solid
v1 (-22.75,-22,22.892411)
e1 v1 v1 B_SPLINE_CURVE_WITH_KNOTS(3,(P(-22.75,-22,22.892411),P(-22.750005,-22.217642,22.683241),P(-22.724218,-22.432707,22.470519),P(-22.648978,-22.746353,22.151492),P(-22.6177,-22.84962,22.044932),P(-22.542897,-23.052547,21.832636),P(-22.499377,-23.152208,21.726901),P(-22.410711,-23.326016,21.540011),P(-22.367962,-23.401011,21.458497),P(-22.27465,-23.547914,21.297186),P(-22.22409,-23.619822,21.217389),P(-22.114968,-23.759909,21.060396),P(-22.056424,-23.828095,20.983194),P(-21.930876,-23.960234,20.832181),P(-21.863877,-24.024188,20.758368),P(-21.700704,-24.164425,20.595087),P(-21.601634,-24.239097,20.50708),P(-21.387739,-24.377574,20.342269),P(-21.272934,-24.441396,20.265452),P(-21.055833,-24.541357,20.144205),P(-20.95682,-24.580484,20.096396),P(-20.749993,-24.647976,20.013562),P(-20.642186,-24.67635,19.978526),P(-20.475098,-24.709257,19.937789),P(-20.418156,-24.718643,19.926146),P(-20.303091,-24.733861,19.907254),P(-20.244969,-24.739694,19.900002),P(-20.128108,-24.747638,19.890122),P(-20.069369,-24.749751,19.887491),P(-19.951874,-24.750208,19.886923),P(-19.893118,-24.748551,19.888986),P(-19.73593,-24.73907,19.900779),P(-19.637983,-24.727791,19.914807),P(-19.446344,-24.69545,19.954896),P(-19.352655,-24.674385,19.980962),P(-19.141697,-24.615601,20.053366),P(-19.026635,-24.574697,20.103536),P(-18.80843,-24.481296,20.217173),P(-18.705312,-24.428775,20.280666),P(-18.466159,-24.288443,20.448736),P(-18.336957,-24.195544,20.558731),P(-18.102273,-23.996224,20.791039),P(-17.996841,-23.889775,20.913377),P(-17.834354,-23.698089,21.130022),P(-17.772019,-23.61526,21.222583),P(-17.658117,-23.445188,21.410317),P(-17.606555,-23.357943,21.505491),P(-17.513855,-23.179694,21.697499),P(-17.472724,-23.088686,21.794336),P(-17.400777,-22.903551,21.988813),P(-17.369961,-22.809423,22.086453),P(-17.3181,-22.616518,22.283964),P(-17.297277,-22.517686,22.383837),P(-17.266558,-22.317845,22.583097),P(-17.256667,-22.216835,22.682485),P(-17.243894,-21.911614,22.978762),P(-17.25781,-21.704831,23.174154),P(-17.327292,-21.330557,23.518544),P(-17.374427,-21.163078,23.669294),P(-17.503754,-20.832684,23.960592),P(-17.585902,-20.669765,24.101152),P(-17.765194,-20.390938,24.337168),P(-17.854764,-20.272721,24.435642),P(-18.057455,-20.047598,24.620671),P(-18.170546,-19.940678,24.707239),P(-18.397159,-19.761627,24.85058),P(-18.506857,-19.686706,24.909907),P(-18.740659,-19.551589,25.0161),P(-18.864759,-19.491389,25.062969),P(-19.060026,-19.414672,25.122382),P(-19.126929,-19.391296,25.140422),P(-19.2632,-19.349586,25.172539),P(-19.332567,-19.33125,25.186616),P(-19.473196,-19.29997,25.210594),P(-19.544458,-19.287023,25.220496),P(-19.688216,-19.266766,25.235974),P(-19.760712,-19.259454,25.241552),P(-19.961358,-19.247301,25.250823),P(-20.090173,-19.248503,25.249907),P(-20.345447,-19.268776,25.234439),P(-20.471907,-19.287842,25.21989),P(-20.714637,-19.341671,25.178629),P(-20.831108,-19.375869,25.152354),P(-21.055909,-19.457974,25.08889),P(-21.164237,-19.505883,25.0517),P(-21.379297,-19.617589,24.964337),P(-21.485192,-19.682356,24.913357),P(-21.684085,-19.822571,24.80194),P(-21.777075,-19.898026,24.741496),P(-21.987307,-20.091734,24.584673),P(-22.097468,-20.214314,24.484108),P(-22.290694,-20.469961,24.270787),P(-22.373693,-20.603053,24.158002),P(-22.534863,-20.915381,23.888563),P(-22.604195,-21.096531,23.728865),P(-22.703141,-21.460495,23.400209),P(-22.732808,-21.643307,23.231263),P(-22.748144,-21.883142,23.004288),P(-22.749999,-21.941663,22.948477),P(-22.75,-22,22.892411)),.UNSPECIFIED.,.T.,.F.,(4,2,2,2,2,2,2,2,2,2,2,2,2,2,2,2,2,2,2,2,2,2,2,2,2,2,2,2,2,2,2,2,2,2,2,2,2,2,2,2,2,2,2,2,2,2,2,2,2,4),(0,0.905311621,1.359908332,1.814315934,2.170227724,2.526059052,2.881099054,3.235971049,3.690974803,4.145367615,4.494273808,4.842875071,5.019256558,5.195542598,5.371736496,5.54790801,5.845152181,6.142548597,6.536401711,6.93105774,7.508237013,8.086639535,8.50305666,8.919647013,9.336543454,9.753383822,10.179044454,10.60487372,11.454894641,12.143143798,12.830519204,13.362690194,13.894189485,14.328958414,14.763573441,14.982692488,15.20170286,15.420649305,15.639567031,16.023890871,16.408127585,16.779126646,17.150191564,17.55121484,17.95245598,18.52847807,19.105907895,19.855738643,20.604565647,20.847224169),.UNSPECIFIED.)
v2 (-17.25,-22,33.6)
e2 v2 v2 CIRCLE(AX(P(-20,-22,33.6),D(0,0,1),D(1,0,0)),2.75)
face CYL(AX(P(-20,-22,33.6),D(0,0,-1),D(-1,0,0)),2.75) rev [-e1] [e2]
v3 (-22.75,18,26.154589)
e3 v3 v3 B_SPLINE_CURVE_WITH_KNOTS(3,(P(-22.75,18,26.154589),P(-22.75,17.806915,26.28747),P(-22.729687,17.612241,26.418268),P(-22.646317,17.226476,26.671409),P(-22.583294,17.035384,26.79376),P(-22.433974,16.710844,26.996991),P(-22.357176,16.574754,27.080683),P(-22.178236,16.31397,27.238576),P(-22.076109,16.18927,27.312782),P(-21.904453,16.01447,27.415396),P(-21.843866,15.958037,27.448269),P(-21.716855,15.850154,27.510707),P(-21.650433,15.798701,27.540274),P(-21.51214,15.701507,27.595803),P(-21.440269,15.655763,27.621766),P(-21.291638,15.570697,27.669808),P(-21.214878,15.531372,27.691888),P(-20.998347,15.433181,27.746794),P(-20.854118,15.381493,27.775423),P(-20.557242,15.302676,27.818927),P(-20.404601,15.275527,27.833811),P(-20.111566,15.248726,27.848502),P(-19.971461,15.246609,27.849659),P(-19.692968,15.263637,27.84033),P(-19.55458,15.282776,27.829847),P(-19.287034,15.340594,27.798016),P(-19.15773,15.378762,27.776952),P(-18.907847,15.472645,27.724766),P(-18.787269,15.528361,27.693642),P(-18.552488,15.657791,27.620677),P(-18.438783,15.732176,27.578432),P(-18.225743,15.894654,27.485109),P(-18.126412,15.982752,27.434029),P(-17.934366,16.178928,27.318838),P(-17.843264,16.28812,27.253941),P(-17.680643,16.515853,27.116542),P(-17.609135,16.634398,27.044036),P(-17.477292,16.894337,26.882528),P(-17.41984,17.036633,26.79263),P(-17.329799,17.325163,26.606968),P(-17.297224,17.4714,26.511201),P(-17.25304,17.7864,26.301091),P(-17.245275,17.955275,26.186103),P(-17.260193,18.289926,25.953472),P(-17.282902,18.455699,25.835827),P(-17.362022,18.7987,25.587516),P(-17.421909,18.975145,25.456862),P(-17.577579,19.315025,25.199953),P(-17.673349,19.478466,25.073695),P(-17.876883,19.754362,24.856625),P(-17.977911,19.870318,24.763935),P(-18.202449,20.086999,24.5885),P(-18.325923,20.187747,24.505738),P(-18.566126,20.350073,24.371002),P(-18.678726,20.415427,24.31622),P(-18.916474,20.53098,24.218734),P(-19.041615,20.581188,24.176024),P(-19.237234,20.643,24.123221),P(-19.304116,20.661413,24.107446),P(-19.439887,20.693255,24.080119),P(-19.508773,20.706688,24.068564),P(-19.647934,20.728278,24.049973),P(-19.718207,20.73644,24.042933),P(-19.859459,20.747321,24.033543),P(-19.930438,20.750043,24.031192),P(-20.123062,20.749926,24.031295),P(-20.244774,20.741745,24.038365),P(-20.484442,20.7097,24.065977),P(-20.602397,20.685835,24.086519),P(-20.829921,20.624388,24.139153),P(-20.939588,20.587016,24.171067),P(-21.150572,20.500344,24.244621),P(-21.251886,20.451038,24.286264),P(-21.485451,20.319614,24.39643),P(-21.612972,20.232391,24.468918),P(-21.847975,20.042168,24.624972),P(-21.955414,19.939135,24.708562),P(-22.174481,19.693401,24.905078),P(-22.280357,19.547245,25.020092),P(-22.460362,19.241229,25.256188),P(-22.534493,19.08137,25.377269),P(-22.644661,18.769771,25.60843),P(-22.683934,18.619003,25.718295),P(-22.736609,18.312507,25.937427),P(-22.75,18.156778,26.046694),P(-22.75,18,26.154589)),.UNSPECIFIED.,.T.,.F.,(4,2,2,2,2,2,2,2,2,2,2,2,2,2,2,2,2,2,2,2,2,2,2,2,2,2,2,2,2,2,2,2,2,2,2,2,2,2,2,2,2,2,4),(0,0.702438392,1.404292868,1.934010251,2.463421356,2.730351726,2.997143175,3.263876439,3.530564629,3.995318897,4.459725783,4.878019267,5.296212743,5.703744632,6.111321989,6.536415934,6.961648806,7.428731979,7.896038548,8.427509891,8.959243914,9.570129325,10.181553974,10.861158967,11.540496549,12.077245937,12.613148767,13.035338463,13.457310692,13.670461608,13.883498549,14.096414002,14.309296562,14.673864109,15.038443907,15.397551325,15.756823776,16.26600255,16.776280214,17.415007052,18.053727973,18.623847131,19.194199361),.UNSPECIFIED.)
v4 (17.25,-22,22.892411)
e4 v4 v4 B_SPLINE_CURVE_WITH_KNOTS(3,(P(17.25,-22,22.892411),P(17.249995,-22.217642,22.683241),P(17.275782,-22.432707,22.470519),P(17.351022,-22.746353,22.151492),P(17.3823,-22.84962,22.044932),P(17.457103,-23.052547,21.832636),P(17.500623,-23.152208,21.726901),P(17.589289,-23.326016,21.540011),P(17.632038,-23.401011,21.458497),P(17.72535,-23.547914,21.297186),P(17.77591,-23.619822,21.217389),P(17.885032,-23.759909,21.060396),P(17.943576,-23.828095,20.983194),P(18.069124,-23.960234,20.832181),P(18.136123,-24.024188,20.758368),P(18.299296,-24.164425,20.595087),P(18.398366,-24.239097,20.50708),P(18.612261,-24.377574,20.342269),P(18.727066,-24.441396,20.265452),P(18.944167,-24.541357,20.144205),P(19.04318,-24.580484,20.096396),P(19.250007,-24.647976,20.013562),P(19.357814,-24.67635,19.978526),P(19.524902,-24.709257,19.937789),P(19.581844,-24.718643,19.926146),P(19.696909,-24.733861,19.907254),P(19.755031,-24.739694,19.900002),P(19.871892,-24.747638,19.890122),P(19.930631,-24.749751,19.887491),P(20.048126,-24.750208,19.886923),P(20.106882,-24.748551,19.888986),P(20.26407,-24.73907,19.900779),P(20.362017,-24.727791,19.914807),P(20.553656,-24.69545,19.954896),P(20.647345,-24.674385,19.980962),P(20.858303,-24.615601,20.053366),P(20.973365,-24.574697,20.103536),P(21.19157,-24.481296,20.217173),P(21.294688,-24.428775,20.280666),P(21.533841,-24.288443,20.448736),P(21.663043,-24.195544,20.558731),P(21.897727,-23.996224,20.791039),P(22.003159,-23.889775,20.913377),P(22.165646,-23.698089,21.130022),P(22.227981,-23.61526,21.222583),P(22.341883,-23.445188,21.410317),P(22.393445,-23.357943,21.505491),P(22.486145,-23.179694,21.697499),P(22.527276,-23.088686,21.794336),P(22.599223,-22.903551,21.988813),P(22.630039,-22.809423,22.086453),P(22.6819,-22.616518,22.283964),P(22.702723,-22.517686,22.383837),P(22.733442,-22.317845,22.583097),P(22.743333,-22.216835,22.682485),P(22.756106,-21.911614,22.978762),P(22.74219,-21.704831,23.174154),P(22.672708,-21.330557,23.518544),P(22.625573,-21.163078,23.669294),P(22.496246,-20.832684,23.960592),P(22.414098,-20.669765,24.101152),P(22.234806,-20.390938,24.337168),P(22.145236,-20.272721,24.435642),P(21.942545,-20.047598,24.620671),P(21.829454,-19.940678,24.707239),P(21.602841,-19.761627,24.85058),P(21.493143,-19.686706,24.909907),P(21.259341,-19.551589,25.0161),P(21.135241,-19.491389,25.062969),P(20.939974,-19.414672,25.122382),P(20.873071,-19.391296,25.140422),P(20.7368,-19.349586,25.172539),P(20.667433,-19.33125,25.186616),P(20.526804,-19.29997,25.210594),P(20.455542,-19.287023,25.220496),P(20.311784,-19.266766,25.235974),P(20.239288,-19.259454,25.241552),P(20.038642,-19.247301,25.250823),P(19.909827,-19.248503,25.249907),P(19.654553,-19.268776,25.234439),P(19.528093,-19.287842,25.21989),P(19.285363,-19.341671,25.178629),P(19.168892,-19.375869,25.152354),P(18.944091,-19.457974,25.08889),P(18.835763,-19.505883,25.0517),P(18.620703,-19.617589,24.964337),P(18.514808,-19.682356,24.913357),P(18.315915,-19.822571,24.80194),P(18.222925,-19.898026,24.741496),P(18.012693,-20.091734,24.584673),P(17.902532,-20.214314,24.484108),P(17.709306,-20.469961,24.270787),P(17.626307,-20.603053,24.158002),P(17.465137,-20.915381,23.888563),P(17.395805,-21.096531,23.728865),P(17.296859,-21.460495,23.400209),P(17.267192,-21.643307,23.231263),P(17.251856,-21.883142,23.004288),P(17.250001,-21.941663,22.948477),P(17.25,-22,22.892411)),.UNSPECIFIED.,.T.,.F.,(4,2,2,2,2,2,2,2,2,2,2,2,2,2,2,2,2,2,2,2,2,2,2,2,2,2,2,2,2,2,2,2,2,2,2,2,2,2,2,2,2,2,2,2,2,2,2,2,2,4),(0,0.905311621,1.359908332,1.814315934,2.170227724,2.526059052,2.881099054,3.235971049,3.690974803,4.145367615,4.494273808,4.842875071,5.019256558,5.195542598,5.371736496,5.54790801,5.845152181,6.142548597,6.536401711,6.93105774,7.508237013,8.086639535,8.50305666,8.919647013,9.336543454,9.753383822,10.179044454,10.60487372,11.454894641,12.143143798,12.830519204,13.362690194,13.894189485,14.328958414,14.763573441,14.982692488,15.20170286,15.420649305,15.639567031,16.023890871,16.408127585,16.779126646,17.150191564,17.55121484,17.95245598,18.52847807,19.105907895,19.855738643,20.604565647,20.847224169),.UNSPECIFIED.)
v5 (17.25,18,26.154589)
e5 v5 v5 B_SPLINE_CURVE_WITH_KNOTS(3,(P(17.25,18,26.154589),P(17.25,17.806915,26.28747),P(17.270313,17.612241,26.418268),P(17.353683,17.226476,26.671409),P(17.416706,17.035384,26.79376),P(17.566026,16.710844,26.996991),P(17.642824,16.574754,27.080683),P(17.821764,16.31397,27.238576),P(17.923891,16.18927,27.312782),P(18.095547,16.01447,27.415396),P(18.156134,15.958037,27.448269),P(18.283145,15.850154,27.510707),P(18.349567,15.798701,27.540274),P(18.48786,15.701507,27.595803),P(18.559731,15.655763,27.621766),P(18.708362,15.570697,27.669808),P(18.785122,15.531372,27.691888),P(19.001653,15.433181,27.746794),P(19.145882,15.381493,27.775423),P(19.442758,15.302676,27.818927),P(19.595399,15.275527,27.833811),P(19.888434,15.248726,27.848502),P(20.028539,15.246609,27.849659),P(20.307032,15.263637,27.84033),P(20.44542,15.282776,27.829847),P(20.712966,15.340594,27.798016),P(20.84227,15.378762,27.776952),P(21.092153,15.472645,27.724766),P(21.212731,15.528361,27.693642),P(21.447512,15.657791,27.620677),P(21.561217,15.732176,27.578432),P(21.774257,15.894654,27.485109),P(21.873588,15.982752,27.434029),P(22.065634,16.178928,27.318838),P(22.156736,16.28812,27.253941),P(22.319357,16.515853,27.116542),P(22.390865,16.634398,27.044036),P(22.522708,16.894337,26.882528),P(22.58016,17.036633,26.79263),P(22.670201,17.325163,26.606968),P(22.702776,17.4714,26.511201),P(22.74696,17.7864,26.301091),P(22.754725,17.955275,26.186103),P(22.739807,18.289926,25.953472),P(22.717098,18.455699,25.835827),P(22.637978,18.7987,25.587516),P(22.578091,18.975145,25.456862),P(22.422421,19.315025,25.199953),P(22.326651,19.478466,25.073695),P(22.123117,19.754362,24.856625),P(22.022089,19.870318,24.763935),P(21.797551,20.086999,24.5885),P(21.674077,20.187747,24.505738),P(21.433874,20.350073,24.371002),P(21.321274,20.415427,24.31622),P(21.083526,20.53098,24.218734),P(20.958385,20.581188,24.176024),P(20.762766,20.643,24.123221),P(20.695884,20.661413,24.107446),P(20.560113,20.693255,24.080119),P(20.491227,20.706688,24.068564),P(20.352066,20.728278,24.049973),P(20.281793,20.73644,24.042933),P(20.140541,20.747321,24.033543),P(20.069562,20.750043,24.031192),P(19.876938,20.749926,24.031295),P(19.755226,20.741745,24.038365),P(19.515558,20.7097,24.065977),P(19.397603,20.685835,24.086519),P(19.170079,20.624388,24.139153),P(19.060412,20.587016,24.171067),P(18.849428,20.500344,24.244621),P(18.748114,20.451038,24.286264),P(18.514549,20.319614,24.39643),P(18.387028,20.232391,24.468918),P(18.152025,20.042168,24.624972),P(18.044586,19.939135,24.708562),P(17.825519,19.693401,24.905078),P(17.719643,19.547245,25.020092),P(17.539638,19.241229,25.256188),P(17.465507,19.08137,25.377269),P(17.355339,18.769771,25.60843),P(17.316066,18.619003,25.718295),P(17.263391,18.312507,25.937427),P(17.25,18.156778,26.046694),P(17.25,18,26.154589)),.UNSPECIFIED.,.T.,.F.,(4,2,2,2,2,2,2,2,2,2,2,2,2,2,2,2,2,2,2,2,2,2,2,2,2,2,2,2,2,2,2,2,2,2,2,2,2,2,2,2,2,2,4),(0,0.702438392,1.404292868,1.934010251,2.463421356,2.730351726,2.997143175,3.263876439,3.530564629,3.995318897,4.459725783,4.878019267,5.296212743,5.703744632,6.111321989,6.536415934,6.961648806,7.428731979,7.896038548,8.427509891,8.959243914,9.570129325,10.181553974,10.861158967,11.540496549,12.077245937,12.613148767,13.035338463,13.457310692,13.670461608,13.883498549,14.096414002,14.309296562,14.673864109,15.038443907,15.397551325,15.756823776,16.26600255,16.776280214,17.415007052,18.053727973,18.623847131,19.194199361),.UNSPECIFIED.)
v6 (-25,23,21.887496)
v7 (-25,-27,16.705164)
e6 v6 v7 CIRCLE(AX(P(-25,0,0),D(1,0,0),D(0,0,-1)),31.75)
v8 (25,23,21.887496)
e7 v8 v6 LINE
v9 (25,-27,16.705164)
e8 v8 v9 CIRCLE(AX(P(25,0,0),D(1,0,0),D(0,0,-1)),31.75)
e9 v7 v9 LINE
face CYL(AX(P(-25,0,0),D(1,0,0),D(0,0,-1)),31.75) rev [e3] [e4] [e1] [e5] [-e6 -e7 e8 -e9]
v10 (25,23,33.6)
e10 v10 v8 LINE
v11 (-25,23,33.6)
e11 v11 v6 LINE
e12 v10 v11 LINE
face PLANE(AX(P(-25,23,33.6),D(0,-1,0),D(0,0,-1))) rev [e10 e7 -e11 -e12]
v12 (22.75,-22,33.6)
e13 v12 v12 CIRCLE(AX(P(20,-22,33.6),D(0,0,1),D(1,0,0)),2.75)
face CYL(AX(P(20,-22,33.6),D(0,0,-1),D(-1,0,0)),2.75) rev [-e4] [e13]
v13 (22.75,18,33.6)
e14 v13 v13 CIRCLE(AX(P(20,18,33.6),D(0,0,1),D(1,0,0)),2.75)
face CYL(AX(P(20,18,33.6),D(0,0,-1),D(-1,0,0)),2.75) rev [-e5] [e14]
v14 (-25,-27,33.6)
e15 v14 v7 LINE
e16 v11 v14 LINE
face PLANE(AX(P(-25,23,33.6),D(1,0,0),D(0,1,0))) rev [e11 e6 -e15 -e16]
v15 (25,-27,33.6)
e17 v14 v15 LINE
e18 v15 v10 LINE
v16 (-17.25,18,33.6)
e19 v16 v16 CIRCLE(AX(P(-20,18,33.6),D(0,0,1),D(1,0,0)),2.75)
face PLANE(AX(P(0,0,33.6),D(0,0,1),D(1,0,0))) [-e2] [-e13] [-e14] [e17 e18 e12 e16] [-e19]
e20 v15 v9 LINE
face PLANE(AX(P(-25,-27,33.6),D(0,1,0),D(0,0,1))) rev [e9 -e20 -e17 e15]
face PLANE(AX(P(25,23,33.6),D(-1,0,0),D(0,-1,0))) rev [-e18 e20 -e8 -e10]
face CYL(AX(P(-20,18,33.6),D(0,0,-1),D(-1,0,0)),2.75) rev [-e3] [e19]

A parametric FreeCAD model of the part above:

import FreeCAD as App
import Part
import Sketcher

V = App.Vector

doc = App.newDocument("Part")
body = doc.addObject("PartDesign::Body", "Body")

# Sketch on XY plane
sketch1 = doc.addObject("Sketcher::SketchObject", "Sketch")
body.addObject(sketch1)
sketch1.AttachmentSupport = (doc.XY_Plane, [""])
sketch1.MapMode = "FlatFace"
sketch1.addGeometry(Part.LineSegment(V(-25, 23, 0), V(-25, -27, 0)), False)
sketch1.addGeometry(Part.LineSegment(V(-25, -27, 0), V(25, -27, 0)), False)
sketch1.addGeometry(Part.LineSegment(V(25, -27, 0), V(25, 23, 0)), False)
sketch1.addGeometry(Part.LineSegment(V(25, 23, 0), V(-25, 23, 0)), False)
sketch1.addGeometry(Part.Circle(V(-20, -22, 0), V(0, 0, 1), 2.8), False)
sketch1.addGeometry(Part.Circle(V(20, -22, 0), V(0, 0, 1), 2.8), False)
sketch1.addGeometry(Part.Circle(V(-20, 18, 0), V(0, 0, 1), 2.8), False)
sketch1.addGeometry(Part.Circle(V(20, 18, 0), V(0, 0, 1), 2.8), False)
sketch1.addConstraint(Sketcher.Constraint("Coincident", 0, 2, 1, 1))
sketch1.addConstraint(Sketcher.Constraint("Coincident", 1, 2, 2, 1))
sketch1.addConstraint(Sketcher.Constraint("Coincident", 2, 2, 3, 1))
sketch1.addConstraint(Sketcher.Constraint("Coincident", 3, 2, 0, 1))
sketch1.addConstraint(Sketcher.Constraint("Vertical", 0))
sketch1.addConstraint(Sketcher.Constraint("Horizontal", 1))
sketch1.addConstraint(Sketcher.Constraint("Vertical", 2))
sketch1.addConstraint(Sketcher.Constraint("Horizontal", 3))
sketch1.addConstraint(Sketcher.Constraint("Equal", 4, 5))
sketch1.addConstraint(Sketcher.Constraint("Equal", 5, 6))
sketch1.addConstraint(Sketcher.Constraint("Equal", 6, 7))
sketch1.addConstraint(Sketcher.Constraint("Symmetric", 4, 3, 5, 3, -2))
sketch1.addConstraint(Sketcher.Constraint("Symmetric", 6, 3, 7, 3, -2))
sketch1.addConstraint(Sketcher.Constraint("Vertical", 4, 3, 6, 3))
sketch1.addConstraint(Sketcher.Constraint("Equal", 3, 0))
sketch1.addConstraint(Sketcher.Constraint("Diameter", 4, 5.5))
sketch1.addConstraint(Sketcher.Constraint("DistanceX", 1, 1, 1, 2, 50.0))
sketch1.addConstraint(Sketcher.Constraint("DistanceX", 4, 3, -1, 1, 20.0))
sketch1.addConstraint(Sketcher.Constraint("DistanceY", 4, 3, -1, 1, 22.0))
sketch1.addConstraint(Sketcher.Constraint("DistanceY", -1, 1, 6, 3, 18.0))
sketch1.addConstraint(Sketcher.Constraint("DistanceX", 0, 2, -1, 1, 25.0))
sketch1.addConstraint(Sketcher.Constraint("DistanceY", 0, 2, -1, 1, 27.0))
pad1 = doc.addObject("PartDesign::Pad", "Pad")
body.addObject(pad1)
pad1.Profile = sketch1
pad1.Length = 33.6

# Sketch on YZ plane
sketch2 = doc.addObject("Sketcher::SketchObject", "Sketch001")
body.addObject(sketch2)
sketch2.AttachmentSupport = (doc.YZ_Plane, [""])
sketch2.MapMode = "FlatFace"
sketch2.addGeometry(Part.Circle(V(0, 0, 0), V(0, 0, 1), 32), False)
sketch2.addConstraint(Sketcher.Constraint("Coincident", 0, 3, -1, 1))
sketch2.addConstraint(Sketcher.Constraint("Diameter", 0, 63.5))
pocket1 = doc.addObject("PartDesign::Pocket", "Pocket")
body.addObject(pocket1)
pocket1.Profile = sketch2
pocket1.Type = "ThroughAll"
pocket1.Midplane = True

doc.recompute()
